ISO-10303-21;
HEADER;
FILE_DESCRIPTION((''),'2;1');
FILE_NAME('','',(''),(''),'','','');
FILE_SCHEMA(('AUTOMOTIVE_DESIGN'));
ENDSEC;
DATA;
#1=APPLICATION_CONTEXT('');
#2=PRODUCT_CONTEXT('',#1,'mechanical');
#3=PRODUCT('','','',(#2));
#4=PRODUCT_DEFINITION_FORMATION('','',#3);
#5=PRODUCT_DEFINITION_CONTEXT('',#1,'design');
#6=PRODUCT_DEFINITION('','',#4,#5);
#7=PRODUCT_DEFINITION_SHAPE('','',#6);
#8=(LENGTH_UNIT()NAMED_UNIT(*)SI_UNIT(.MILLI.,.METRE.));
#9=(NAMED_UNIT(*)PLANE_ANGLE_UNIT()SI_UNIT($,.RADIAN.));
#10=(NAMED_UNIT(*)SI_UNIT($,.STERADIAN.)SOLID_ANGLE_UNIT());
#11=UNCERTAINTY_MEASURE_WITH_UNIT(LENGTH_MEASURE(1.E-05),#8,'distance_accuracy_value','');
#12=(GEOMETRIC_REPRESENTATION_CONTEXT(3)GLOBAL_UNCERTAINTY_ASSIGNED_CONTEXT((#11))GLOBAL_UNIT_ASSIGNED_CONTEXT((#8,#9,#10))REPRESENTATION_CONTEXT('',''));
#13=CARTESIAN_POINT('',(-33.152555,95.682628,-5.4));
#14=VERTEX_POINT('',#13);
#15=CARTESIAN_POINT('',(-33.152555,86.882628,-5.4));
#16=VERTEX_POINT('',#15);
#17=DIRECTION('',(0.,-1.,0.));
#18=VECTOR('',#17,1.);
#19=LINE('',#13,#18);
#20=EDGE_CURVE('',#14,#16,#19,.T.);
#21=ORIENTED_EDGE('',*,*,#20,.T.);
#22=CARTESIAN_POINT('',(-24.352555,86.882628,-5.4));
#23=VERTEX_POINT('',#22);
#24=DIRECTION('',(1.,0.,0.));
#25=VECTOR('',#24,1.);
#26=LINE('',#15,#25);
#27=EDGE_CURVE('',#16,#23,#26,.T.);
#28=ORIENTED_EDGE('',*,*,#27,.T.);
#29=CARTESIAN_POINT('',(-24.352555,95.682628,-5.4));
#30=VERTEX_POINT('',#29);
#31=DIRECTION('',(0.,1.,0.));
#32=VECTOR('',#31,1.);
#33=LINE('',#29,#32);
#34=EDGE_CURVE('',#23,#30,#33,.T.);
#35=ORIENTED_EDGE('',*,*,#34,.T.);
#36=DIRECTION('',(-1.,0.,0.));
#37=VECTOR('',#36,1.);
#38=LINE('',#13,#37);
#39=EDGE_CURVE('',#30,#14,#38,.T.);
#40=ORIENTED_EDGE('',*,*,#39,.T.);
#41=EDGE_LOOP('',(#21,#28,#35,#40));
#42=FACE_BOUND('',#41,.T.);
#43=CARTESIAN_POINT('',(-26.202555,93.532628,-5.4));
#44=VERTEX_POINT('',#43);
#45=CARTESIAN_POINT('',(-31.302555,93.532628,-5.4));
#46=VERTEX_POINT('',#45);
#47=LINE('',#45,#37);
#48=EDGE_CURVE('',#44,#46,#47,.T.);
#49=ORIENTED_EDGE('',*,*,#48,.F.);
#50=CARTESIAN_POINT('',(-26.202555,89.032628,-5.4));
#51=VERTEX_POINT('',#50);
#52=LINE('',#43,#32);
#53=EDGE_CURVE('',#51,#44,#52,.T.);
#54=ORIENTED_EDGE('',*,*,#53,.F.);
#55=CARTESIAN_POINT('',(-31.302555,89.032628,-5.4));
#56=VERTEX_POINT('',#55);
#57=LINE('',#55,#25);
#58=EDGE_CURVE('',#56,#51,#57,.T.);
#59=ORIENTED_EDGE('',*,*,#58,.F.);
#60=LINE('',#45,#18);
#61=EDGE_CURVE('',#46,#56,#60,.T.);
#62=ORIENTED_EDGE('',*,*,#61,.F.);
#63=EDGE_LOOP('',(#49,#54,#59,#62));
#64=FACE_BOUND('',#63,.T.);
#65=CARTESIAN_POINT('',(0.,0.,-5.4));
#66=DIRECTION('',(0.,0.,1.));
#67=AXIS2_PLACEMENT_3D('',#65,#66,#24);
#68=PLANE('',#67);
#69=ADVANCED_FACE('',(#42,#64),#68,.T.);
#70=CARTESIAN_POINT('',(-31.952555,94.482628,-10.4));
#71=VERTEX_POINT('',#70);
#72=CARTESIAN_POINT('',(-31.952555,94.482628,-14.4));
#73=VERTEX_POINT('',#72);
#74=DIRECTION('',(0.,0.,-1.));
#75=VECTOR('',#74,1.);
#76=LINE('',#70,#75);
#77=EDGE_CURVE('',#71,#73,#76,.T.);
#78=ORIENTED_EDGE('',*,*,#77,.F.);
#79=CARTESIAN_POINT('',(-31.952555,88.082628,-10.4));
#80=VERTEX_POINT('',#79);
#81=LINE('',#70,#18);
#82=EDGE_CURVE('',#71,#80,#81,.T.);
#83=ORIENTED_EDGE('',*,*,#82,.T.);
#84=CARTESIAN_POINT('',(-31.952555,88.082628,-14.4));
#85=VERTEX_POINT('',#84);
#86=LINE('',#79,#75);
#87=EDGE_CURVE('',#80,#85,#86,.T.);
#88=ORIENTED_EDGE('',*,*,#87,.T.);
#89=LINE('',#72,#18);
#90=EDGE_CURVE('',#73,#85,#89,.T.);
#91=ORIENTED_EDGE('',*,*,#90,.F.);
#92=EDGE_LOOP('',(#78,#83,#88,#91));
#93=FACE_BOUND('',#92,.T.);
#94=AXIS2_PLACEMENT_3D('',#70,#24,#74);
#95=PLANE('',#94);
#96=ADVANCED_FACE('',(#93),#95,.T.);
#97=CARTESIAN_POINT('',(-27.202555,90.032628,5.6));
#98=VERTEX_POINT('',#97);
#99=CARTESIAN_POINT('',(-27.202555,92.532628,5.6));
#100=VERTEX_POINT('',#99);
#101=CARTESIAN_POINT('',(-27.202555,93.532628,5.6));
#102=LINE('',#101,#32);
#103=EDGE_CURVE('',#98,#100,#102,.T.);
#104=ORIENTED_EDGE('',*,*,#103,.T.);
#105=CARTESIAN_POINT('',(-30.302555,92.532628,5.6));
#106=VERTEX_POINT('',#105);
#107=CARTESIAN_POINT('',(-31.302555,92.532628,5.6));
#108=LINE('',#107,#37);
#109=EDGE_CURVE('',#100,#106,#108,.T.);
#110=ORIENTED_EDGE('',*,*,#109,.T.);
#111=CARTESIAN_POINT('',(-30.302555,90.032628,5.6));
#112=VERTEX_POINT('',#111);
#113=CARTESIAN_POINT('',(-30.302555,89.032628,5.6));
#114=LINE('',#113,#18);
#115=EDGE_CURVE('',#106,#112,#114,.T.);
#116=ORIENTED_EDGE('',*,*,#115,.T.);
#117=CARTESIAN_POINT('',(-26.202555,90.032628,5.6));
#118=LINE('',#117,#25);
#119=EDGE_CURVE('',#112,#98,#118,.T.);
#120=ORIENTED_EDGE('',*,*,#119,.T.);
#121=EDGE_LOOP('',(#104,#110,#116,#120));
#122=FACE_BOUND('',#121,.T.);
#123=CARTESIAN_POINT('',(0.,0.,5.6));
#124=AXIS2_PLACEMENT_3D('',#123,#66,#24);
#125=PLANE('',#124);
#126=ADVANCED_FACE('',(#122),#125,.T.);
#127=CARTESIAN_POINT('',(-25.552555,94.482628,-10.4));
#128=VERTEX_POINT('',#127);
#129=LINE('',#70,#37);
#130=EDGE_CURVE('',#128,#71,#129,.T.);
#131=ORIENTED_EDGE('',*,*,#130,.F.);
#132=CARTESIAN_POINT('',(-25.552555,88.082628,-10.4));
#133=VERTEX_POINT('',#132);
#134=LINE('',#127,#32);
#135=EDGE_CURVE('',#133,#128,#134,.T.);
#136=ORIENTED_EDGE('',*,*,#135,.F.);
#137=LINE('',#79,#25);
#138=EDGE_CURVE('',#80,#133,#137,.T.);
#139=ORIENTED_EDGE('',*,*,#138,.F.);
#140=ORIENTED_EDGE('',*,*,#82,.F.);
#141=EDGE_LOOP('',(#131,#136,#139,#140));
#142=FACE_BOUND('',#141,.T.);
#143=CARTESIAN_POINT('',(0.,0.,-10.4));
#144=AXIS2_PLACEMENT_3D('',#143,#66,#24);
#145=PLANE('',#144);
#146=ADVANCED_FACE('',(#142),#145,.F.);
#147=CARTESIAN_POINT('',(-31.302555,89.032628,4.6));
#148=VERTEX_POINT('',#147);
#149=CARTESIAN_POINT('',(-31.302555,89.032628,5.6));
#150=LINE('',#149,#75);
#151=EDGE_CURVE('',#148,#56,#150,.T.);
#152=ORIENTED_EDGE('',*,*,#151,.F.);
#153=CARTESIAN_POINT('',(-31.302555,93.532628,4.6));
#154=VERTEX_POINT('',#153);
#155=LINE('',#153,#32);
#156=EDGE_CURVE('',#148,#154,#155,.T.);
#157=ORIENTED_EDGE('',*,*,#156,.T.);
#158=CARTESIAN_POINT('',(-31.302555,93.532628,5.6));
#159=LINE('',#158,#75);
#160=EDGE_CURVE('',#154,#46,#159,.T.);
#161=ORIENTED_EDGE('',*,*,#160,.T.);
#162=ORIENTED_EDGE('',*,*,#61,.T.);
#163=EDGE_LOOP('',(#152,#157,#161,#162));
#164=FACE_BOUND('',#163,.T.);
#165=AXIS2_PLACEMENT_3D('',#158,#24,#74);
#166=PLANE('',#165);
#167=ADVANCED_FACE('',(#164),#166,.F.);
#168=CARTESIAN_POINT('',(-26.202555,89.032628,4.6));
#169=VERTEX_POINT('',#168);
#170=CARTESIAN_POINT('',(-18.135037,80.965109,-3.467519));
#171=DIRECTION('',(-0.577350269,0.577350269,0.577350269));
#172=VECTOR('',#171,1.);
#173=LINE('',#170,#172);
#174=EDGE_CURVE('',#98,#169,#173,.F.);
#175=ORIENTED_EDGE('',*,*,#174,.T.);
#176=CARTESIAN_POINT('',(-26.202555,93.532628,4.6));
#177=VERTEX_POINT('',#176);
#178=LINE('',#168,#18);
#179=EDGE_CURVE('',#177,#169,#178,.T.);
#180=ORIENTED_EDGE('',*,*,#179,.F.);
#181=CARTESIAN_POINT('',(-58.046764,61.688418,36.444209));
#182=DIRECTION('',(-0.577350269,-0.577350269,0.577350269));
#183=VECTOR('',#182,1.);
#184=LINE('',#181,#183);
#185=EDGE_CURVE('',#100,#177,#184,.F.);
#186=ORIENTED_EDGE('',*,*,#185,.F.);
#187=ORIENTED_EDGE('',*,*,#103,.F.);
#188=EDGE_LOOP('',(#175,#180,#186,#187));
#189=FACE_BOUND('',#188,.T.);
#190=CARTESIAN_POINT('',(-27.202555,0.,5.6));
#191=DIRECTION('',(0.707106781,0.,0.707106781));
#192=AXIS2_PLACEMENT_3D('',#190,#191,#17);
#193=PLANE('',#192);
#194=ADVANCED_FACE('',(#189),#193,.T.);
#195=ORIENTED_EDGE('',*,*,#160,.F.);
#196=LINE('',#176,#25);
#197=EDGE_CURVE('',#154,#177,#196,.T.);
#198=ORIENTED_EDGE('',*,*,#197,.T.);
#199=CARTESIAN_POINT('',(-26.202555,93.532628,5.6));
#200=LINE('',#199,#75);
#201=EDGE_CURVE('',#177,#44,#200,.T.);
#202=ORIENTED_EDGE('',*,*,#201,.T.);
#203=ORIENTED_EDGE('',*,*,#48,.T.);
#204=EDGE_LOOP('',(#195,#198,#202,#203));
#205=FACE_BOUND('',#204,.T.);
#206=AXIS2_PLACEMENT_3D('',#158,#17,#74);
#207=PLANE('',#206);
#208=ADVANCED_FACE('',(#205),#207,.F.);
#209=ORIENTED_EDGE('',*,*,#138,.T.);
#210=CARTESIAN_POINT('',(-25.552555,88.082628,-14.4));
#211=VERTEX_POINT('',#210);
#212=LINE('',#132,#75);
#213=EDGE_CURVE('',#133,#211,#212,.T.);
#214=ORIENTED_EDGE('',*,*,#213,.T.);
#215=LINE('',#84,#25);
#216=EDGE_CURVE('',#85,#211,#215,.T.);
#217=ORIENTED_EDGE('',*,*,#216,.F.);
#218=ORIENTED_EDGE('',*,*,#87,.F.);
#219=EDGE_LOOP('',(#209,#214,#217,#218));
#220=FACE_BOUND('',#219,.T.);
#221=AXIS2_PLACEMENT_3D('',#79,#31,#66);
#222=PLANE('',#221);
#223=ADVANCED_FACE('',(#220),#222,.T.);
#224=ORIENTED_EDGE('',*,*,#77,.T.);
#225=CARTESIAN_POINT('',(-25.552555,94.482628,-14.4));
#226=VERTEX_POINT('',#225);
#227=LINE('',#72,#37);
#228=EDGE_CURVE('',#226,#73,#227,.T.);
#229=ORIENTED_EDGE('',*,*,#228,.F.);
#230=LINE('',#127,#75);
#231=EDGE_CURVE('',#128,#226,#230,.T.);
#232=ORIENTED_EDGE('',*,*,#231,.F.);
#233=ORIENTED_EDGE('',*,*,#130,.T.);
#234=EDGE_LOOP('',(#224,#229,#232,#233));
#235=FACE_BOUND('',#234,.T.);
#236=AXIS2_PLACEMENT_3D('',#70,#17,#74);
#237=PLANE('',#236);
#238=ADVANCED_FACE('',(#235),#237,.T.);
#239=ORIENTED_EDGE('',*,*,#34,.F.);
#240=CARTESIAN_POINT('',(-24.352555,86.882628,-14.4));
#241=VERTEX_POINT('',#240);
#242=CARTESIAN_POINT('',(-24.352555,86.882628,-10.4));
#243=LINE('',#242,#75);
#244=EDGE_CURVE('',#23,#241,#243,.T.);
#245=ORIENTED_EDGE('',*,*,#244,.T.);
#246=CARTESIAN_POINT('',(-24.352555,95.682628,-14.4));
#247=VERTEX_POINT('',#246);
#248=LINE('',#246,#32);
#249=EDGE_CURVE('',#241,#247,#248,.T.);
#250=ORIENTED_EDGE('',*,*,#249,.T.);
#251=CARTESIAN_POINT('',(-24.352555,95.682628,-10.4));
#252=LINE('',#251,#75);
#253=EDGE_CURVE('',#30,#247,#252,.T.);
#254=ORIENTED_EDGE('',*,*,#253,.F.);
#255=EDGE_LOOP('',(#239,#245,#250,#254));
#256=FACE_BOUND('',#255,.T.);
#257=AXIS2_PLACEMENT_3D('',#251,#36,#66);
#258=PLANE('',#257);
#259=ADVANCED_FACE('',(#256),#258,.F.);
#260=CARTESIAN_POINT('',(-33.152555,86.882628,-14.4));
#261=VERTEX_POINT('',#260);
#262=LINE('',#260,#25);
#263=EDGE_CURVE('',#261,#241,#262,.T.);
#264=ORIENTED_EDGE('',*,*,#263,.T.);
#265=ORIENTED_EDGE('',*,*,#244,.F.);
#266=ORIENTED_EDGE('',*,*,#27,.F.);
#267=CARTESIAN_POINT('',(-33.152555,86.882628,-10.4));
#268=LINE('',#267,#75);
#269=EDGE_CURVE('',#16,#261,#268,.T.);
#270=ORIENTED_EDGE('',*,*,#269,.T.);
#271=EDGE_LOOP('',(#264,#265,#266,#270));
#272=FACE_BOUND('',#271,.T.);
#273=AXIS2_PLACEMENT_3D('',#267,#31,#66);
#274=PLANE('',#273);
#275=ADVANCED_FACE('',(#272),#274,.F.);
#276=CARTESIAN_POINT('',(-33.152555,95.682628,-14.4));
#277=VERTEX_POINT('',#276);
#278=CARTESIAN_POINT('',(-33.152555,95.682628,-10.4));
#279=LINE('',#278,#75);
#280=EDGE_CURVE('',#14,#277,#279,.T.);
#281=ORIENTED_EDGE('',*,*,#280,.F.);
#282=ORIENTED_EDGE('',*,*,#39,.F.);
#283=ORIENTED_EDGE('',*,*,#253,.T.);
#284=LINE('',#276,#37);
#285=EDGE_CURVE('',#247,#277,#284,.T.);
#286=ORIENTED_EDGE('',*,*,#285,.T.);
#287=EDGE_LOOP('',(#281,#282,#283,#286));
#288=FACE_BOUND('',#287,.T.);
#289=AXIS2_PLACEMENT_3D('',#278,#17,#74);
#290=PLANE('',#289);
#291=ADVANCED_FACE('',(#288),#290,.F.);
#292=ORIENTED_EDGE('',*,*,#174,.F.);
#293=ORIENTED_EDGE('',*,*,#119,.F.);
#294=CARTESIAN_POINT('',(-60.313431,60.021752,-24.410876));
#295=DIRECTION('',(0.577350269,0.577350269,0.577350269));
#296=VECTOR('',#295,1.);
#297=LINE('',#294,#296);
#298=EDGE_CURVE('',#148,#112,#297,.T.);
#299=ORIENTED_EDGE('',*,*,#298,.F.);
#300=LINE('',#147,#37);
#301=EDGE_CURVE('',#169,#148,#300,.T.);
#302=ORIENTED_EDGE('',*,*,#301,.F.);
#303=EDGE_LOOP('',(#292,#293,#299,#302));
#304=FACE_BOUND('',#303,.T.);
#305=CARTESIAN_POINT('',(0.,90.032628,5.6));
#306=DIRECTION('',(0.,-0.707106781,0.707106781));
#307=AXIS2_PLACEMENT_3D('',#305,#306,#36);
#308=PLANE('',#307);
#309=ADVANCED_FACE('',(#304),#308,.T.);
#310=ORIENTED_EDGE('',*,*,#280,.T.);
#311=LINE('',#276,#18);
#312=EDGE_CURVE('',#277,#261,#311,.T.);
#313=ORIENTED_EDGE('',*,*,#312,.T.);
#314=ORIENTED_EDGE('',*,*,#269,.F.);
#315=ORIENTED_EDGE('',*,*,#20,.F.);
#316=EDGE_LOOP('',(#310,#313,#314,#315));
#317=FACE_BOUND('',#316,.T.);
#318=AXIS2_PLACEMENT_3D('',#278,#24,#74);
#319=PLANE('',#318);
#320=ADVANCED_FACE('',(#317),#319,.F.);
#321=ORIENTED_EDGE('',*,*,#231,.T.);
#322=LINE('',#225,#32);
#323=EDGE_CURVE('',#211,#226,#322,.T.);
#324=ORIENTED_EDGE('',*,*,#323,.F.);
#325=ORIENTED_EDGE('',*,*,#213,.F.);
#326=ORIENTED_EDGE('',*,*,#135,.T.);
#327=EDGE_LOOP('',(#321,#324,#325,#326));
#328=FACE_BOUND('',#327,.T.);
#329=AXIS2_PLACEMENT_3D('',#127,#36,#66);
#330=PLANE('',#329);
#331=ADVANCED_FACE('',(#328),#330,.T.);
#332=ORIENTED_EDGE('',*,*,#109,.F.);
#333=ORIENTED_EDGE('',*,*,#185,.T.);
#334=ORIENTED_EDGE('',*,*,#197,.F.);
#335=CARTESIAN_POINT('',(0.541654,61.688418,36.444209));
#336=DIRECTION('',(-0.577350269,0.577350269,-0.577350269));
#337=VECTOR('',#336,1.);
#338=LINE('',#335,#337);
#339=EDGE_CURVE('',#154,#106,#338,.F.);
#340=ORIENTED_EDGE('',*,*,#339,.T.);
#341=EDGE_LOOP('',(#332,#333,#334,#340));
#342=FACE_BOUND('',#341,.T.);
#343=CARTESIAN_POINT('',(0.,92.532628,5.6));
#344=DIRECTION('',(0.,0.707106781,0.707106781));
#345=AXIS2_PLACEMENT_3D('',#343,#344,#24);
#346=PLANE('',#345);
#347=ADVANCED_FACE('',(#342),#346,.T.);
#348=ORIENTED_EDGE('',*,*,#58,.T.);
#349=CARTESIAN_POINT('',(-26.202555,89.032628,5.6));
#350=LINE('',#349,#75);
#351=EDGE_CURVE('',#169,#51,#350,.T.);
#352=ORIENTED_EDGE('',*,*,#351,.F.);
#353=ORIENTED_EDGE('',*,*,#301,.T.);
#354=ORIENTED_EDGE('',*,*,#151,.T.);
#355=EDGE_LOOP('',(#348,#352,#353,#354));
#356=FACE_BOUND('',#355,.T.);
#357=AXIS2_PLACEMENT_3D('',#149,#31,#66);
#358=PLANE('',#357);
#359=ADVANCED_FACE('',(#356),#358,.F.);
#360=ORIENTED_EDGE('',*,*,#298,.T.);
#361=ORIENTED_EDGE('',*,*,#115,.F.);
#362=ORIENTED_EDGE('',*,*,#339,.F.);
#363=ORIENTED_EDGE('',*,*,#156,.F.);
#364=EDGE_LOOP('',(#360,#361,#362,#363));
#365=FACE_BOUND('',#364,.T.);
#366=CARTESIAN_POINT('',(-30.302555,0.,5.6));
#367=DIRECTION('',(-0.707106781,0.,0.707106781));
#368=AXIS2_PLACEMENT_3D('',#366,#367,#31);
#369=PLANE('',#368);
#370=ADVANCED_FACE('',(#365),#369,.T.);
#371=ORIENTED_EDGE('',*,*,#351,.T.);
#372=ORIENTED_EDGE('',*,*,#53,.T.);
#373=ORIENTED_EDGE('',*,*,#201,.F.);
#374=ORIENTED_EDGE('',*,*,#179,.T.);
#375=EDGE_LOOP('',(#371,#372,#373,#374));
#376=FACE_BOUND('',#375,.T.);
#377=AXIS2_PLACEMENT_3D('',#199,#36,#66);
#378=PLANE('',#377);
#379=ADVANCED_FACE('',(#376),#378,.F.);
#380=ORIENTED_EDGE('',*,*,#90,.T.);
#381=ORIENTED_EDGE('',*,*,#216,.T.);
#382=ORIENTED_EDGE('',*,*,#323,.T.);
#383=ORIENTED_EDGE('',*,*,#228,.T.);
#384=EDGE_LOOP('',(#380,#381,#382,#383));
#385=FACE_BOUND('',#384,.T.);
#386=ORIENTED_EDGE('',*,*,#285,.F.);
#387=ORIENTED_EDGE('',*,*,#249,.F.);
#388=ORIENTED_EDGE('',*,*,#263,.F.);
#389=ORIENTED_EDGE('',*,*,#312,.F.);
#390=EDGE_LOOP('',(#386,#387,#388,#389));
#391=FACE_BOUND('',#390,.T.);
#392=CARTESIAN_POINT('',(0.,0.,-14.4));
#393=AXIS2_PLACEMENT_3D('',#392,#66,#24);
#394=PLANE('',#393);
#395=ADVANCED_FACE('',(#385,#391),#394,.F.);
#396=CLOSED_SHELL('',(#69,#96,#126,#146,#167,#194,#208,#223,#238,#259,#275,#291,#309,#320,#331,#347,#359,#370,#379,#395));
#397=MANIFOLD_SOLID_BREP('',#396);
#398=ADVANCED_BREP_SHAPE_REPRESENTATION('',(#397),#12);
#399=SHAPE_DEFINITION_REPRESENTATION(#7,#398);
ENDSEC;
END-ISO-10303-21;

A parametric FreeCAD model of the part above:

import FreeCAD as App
import Part
import Sketcher


def edges_at(feature, points):
    """Names of the edges that pass closest to the given points."""
    edges = feature.Shape.Edges
    near = lambda p: min(range(len(edges)), key=lambda i: edges[i].distToShape(Part.Vertex(*p))[0])
    return sorted({f"Edge{near(p) + 1}" for p in points})

doc = App.newDocument("Part")
body = doc.addObject("PartDesign::Body", "Body")

# Sketch on XY plane
sketch1 = doc.addObject("Sketcher::SketchObject", "Sketch")
body.addObject(sketch1)
sketch1.AttachmentSupport = (doc.XY_Plane, [""])
sketch1.MapMode = "FlatFace"
sketch1.AttachmentOffset = App.Placement(App.Vector(0, 0, -12.4), App.Rotation())
sketch1.addGeometry(Part.LineSegment(App.Vector(-33.152555, 95.682628, 0), App.Vector(-33.152555, 86.882628, 0)), False)
sketch1.addGeometry(Part.LineSegment(App.Vector(-33.152555, 86.882628, 0), App.Vector(-24.352555, 86.882628, 0)), False)
sketch1.addGeometry(Part.LineSegment(App.Vector(-24.352555, 86.882628, 0), App.Vector(-24.352555, 95.682628, 0)), False)
sketch1.addGeometry(Part.LineSegment(App.Vector(-24.352555, 95.682628, 0), App.Vector(-33.152555, 95.682628, 0)), False)
sketch1.addGeometry(Part.LineSegment(App.Vector(-25.552555, 88.082628, 0), App.Vector(-31.952555, 88.082628, 0)), False)
sketch1.addGeometry(Part.LineSegment(App.Vector(-31.952555, 88.082628, 0), App.Vector(-31.952555, 94.482628, 0)), False)
sketch1.addGeometry(Part.LineSegment(App.Vector(-31.952555, 94.482628, 0), App.Vector(-25.552555, 94.482628, 0)), False)
sketch1.addGeometry(Part.LineSegment(App.Vector(-25.552555, 94.482628, 0), App.Vector(-25.552555, 88.082628, 0)), False)
sketch1.addConstraint(Sketcher.Constraint("Coincident", 0, 2, 1, 1))
sketch1.addConstraint(Sketcher.Constraint("Coincident", 1, 2, 2, 1))
sketch1.addConstraint(Sketcher.Constraint("Coincident", 2, 2, 3, 1))
sketch1.addConstraint(Sketcher.Constraint("Coincident", 3, 2, 0, 1))
sketch1.addConstraint(Sketcher.Constraint("Coincident", 4, 2, 5, 1))
sketch1.addConstraint(Sketcher.Constraint("Coincident", 5, 2, 6, 1))
sketch1.addConstraint(Sketcher.Constraint("Coincident", 6, 2, 7, 1))
sketch1.addConstraint(Sketcher.Constraint("Coincident", 7, 2, 4, 1))
sketch1.addConstraint(Sketcher.Constraint("Vertical", 0))
sketch1.addConstraint(Sketcher.Constraint("Horizontal", 1))
sketch1.addConstraint(Sketcher.Constraint("Vertical", 2))
sketch1.addConstraint(Sketcher.Constraint("Horizontal", 3))
sketch1.addConstraint(Sketcher.Constraint("Horizontal", 4))
sketch1.addConstraint(Sketcher.Constraint("Vertical", 5))
sketch1.addConstraint(Sketcher.Constraint("Horizontal", 6))
sketch1.addConstraint(Sketcher.Constraint("Vertical", 7))
sketch1.addConstraint(Sketcher.Constraint("Equal", 3, 0))
sketch1.addConstraint(Sketcher.Constraint("Equal", 6, 5))
sketch1.addConstraint(Sketcher.Constraint("DistanceX", 1, 1, 1, 2, 8.8))
sketch1.addConstraint(Sketcher.Constraint("DistanceX", 4, 2, 4, 1, 6.4))
sketch1.addConstraint(Sketcher.Constraint("DistanceX", 0, 2, 4, 2, 1.2))
sketch1.addConstraint(Sketcher.Constraint("DistanceY", 0, 2, 4, 2, 1.2))
sketch1.addConstraint(Sketcher.Constraint("DistanceX", 0, 2, -1, 1, 33.152555))
sketch1.addConstraint(Sketcher.Constraint("DistanceY", -1, 1, 0, 2, 86.882628))
pad1 = doc.addObject("PartDesign::Pad", "Pad")
body.addObject(pad1)
pad1.Profile = sketch1
pad1.Type = "TwoLengths"
pad1.Length = 2
pad1.Length2 = 2

# Sketch on XY plane
sketch2 = doc.addObject("Sketcher::SketchObject", "Sketch001")
body.addObject(sketch2)
sketch2.AttachmentSupport = (doc.XY_Plane, [""])
sketch2.MapMode = "FlatFace"
sketch2.AttachmentOffset = App.Placement(App.Vector(0, 0, -10.4), App.Rotation())
sketch2.addGeometry(Part.LineSegment(App.Vector(-33.152555, 95.682628, 0), App.Vector(-33.152555, 86.882628, 0)), False)
sketch2.addGeometry(Part.LineSegment(App.Vector(-33.152555, 86.882628, 0), App.Vector(-24.352555, 86.882628, 0)), False)
sketch2.addGeometry(Part.LineSegment(App.Vector(-24.352555, 86.882628, 0), App.Vector(-24.352555, 95.682628, 0)), False)
sketch2.addGeometry(Part.LineSegment(App.Vector(-24.352555, 95.682628, 0), App.Vector(-33.152555, 95.682628, 0)), False)
sketch2.addConstraint(Sketcher.Constraint("Coincident", 0, 2, 1, 1))
sketch2.addConstraint(Sketcher.Constraint("Coincident", 1, 2, 2, 1))
sketch2.addConstraint(Sketcher.Constraint("Coincident", 2, 2, 3, 1))
sketch2.addConstraint(Sketcher.Constraint("Coincident", 3, 2, 0, 1))
sketch2.addConstraint(Sketcher.Constraint("Vertical", 0))
sketch2.addConstraint(Sketcher.Constraint("Horizontal", 1))
sketch2.addConstraint(Sketcher.Constraint("Vertical", 2))
sketch2.addConstraint(Sketcher.Constraint("Horizontal", 3))
sketch2.addConstraint(Sketcher.Constraint("Equal", 3, 0))
sketch2.addConstraint(Sketcher.Constraint("DistanceX", 1, 1, 1, 2, 8.8))
sketch2.addConstraint(Sketcher.Constraint("DistanceX", 0, 2, -1, 1, 33.152555))
sketch2.addConstraint(Sketcher.Constraint("DistanceY", -1, 1, 0, 2, 86.882628))
pad2 = doc.addObject("PartDesign::Pad", "Pad001")
body.addObject(pad2)
pad2.Profile = sketch2
pad2.Length = 5

# Sketch on XY plane
sketch3 = doc.addObject("Sketcher::SketchObject", "Sketch002")
body.addObject(sketch3)
sketch3.AttachmentSupport = (doc.XY_Plane, [""])
sketch3.MapMode = "FlatFace"
sketch3.AttachmentOffset = App.Placement(App.Vector(0, 0, -5.4), App.Rotation())
sketch3.addGeometry(Part.LineSegment(App.Vector(-31.302555, 93.532628, 0), App.Vector(-31.302555, 89.032628, 0)), False)
sketch3.addGeometry(Part.LineSegment(App.Vector(-31.302555, 89.032628, 0), App.Vector(-26.202555, 89.032628, 0)), False)
sketch3.addGeometry(Part.LineSegment(App.Vector(-26.202555, 89.032628, 0), App.Vector(-26.202555, 93.532628, 0)), False)
sketch3.addGeometry(Part.LineSegment(App.Vector(-26.202555, 93.532628, 0), App.Vector(-31.302555, 93.532628, 0)), False)
sketch3.addConstraint(Sketcher.Constraint("Coincident", 0, 2, 1, 1))
sketch3.addConstraint(Sketcher.Constraint("Coincident", 1, 2, 2, 1))
sketch3.addConstraint(Sketcher.Constraint("Coincident", 2, 2, 3, 1))
sketch3.addConstraint(Sketcher.Constraint("Coincident", 3, 2, 0, 1))
sketch3.addConstraint(Sketcher.Constraint("Vertical", 0))
sketch3.addConstraint(Sketcher.Constraint("Horizontal", 1))
sketch3.addConstraint(Sketcher.Constraint("Vertical", 2))
sketch3.addConstraint(Sketcher.Constraint("Horizontal", 3))
sketch3.addConstraint(Sketcher.Constraint("DistanceX", 1, 1, 1, 2, 5.1))
sketch3.addConstraint(Sketcher.Constraint("DistanceY", 0, 2, 0, 1, 4.5))
sketch3.addConstraint(Sketcher.Constraint("DistanceX", 0, 2, -1, 1, 31.302555))
sketch3.addConstraint(Sketcher.Constraint("DistanceY", -1, 1, 0, 2, 89.032628))
pad3 = doc.addObject("PartDesign::Pad", "Pad002")
body.addObject(pad3)
pad3.Profile = sketch3
pad3.Length = 11
doc.recompute()

chamfer = doc.addObject("PartDesign::Chamfer", "Chamfer")
body.addObject(chamfer)
chamfer.Base = (pad3, edges_at(pad3, [
    (-31.303, 91.283, 5.6),
    (-28.753, 89.033, 5.6),
    (-26.203, 91.283, 5.6),
    (-28.753, 93.533, 5.6),
]))
chamfer.Size = 1

doc.recompute()
